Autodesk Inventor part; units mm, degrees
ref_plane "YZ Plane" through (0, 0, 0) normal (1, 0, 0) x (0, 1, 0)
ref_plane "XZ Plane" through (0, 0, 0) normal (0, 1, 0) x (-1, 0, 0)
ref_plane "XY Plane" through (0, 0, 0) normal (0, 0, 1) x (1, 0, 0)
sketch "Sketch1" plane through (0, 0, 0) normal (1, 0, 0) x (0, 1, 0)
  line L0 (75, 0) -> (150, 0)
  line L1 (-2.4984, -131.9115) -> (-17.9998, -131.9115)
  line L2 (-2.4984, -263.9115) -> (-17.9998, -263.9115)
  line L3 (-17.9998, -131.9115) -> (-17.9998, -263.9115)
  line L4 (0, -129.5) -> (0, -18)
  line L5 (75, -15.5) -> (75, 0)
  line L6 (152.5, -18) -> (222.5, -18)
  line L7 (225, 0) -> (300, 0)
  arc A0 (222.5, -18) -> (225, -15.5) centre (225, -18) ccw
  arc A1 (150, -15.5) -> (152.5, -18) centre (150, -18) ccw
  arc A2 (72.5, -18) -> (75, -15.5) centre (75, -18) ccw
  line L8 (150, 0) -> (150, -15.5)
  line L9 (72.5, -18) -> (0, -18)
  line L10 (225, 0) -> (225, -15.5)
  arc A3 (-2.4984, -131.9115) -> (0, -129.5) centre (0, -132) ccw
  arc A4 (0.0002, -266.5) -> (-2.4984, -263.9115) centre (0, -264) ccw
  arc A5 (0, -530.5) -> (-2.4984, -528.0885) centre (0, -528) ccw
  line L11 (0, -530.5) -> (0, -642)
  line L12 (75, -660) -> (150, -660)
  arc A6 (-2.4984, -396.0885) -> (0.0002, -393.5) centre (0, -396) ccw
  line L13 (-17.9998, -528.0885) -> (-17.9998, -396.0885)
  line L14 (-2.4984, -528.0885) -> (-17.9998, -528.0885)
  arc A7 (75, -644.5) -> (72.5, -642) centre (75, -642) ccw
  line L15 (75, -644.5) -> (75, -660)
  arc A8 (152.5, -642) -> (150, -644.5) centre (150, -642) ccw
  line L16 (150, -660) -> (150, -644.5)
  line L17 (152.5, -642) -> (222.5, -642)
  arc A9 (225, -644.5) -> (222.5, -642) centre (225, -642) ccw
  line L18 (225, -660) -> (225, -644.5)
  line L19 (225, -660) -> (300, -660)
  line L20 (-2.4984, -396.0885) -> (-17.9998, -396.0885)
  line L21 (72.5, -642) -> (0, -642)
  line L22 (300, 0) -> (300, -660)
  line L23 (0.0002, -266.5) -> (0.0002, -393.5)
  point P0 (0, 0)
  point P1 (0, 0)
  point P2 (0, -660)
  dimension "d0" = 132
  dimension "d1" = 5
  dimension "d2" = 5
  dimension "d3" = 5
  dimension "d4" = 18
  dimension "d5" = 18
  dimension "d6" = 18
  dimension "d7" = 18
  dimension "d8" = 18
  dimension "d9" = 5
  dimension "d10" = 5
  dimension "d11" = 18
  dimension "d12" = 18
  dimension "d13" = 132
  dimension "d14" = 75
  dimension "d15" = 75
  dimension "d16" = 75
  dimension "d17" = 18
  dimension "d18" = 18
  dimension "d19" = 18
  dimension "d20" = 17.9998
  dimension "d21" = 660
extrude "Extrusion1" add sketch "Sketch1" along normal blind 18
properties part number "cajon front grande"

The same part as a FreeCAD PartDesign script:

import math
import FreeCAD as App
import Part
import Sketcher

V = App.Vector

doc = App.newDocument("Part")
body = doc.addObject("PartDesign::Body", "Body")

sketch1 = body.newObject("Sketcher::SketchObject", "Sketch")
sketch1.AttachmentSupport = (doc.getObject("YZ_Plane"), [""])
sketch1.MapMode = "FlatFace"
sketch1.addGeometry([
    Part.LineSegment(V(150, 0, 0), V(75, 0, 0)),
    Part.LineSegment(V(75, 0, 0), V(75, -15.5, 0)),
    Part.ArcOfCircle(Part.Circle(V(75, -18, 0), V(0, 0, 1), 2.5), math.radians(180), math.radians(450)),
    Part.LineSegment(V(72.5, -18, 0), V(0, -18, 0)),
    Part.LineSegment(V(0, -18, 0), V(0, -129.5, 0)),
    Part.ArcOfCircle(Part.Circle(V(0, -132, 0), V(0, 0, 1), 2.499967), math.radians(177.971279), math.radians(450)),
    Part.LineSegment(V(-2.4984, -131.9115, 0), V(-17.9998, -131.9115, 0)),
    Part.LineSegment(V(-17.9998, -131.9115, 0), V(-17.9998, -263.9115, 0)),
    Part.LineSegment(V(-17.9998, -263.9115, 0), V(-2.4984, -263.9115, 0)),
    Part.ArcOfCircle(Part.Circle(V(0, -264, 0), V(0, 0, 1), 2.5), math.radians(-89.995416), math.radians(177.971279)),
    Part.LineSegment(V(0.0002, -266.5, 0), V(0.0002, -393.5, 0)),
    Part.ArcOfCircle(Part.Circle(V(0, -396, 0), V(0, 0, 1), 2.499967), math.radians(-177.971279), math.radians(89.995416)),
    Part.LineSegment(V(-2.4984, -396.0885, 0), V(-17.9998, -396.0885, 0)),
    Part.LineSegment(V(-17.9998, -396.0885, 0), V(-17.9998, -528.0885, 0)),
    Part.LineSegment(V(-17.9998, -528.0885, 0), V(-2.4984, -528.0885, 0)),
    Part.ArcOfCircle(Part.Circle(V(0, -528, 0), V(0, 0, 1), 2.5), math.radians(-90), math.radians(182.028721)),
    Part.LineSegment(V(0, -530.5, 0), V(0, -642, 0)),
    Part.LineSegment(V(0, -642, 0), V(72.5, -642, 0)),
    Part.ArcOfCircle(Part.Circle(V(75, -642, 0), V(0, 0, 1), 2.5), math.radians(-90), math.radians(180)),
    Part.LineSegment(V(75, -644.5, 0), V(75, -660, 0)),
    Part.LineSegment(V(75, -660, 0), V(150, -660, 0)),
    Part.LineSegment(V(150, -660, 0), V(150, -644.5, 0)),
    Part.ArcOfCircle(Part.Circle(V(150, -642, 0), V(0, 0, 1), 2.5), math.radians(0), math.radians(270)),
    Part.LineSegment(V(152.5, -642, 0), V(222.5, -642, 0)),
    Part.ArcOfCircle(Part.Circle(V(225, -642, 0), V(0, 0, 1), 2.5), math.radians(-90), math.radians(180)),
    Part.LineSegment(V(225, -644.5, 0), V(225, -660, 0)),
    Part.LineSegment(V(225, -660, 0), V(300, -660, 0)),
    Part.LineSegment(V(300, -660, 0), V(300, 0, 0)),
    Part.LineSegment(V(300, 0, 0), V(225, 0, 0)),
    Part.LineSegment(V(225, 0, 0), V(225, -15.5, 0)),
    Part.ArcOfCircle(Part.Circle(V(225, -18, 0), V(0, 0, 1), 2.5), math.radians(180), math.radians(450)),
    Part.LineSegment(V(222.5, -18, 0), V(152.5, -18, 0)),
    Part.ArcOfCircle(Part.Circle(V(150, -18, 0), V(0, 0, 1), 2.5), math.radians(90), math.radians(360)),
    Part.LineSegment(V(150, -15.5, 0), V(150, 0, 0)),
], False)
sketch1.addConstraint([
    Sketcher.Constraint("Coincident", 0, 2, 1, 1),
    Sketcher.Constraint("Coincident", 1, 2, 2, 2),
    Sketcher.Constraint("Coincident", 2, 1, 3, 1),
    Sketcher.Constraint("Coincident", 3, 2, 4, 1),
    Sketcher.Constraint("Coincident", 4, 2, 5, 2),
    Sketcher.Constraint("Coincident", 5, 1, 6, 1),
    Sketcher.Constraint("Coincident", 6, 2, 7, 1),
    Sketcher.Constraint("Coincident", 7, 2, 8, 1),
    Sketcher.Constraint("Coincident", 8, 2, 9, 2),
    Sketcher.Constraint("Coincident", 9, 1, 10, 1),
    Sketcher.Constraint("Coincident", 10, 2, 11, 2),
    Sketcher.Constraint("Coincident", 11, 1, 12, 1),
    Sketcher.Constraint("Coincident", 12, 2, 13, 1),
    Sketcher.Constraint("Coincident", 13, 2, 14, 1),
    Sketcher.Constraint("Coincident", 14, 2, 15, 2),
    Sketcher.Constraint("Coincident", 15, 1, 16, 1),
    Sketcher.Constraint("Coincident", 16, 2, 17, 1),
    Sketcher.Constraint("Coincident", 17, 2, 18, 2),
    Sketcher.Constraint("Coincident", 18, 1, 19, 1),
    Sketcher.Constraint("Coincident", 19, 2, 20, 1),
    Sketcher.Constraint("Coincident", 20, 2, 21, 1),
    Sketcher.Constraint("Coincident", 21, 2, 22, 2),
    Sketcher.Constraint("Coincident", 22, 1, 23, 1),
    Sketcher.Constraint("Coincident", 23, 2, 24, 2),
    Sketcher.Constraint("Coincident", 24, 1, 25, 1),
    Sketcher.Constraint("Coincident", 25, 2, 26, 1),
    Sketcher.Constraint("Coincident", 26, 2, 27, 1),
    Sketcher.Constraint("Coincident", 27, 2, 28, 1),
    Sketcher.Constraint("Coincident", 28, 2, 29, 1),
    Sketcher.Constraint("Coincident", 29, 2, 30, 2),
    Sketcher.Constraint("Coincident", 30, 1, 31, 1),
    Sketcher.Constraint("Coincident", 31, 2, 32, 2),
    Sketcher.Constraint("Coincident", 32, 1, 33, 1),
    Sketcher.Constraint("Coincident", 33, 2, 0, 1),
    Sketcher.Constraint("Horizontal", 0),
    Sketcher.Constraint("Vertical", 1),
    Sketcher.Constraint("Horizontal", 3),
    Sketcher.Constraint("Vertical", 4),
    Sketcher.Constraint("Horizontal", 6),
    Sketcher.Constraint("Vertical", 7),
    Sketcher.Constraint("Horizontal", 8),
    Sketcher.Constraint("Vertical", 10),
    Sketcher.Constraint("Horizontal", 12),
    Sketcher.Constraint("Vertical", 13),
    Sketcher.Constraint("Horizontal", 14),
    Sketcher.Constraint("Vertical", 16),
    Sketcher.Constraint("Horizontal", 17),
    Sketcher.Constraint("Vertical", 19),
    Sketcher.Constraint("Horizontal", 20),
    Sketcher.Constraint("Vertical", 21),
    Sketcher.Constraint("Horizontal", 23),
    Sketcher.Constraint("Vertical", 25),
    Sketcher.Constraint("Horizontal", 26),
    Sketcher.Constraint("Vertical", 27),
    Sketcher.Constraint("Horizontal", 28),
    Sketcher.Constraint("Vertical", 29),
    Sketcher.Constraint("Horizontal", 31),
    Sketcher.Constraint("Vertical", 33),
    Sketcher.Constraint("PointOnObject", 5, 3, -2),
    Sketcher.Constraint("PointOnObject", 9, 3, -2),
    Sketcher.Constraint("PointOnObject", 11, 3, -2),
    Sketcher.Constraint("PointOnObject", 15, 3, -2),
    Sketcher.Constraint("PointOnObject", 0, 2, -1),
    Sketcher.Constraint("PointOnObject", 3, 2, -2),
    Sketcher.Constraint("PointOnObject", 15, 1, -2),
    Sketcher.Constraint("PointOnObject", 27, 2, -1),
    Sketcher.Constraint("Radius", 2, 2.5),
    Sketcher.Constraint("Radius", 5, 2.5),
    Sketcher.Constraint("Radius", 9, 2.5),
    Sketcher.Constraint("Radius", 11, 2.5),
    Sketcher.Constraint("Radius", 15, 2.5),
    Sketcher.Constraint("Radius", 18, 2.5),
    Sketcher.Constraint("Radius", 22, 2.5),
    Sketcher.Constraint("Radius", 24, 2.5),
    Sketcher.Constraint("Radius", 30, 2.5),
    Sketcher.Constraint("Radius", 32, 2.5),
    Sketcher.Constraint("DistanceX", 0, 2, 0, 1, 75.0),
    Sketcher.Constraint("DistanceX", 20, 1, 20, 2, 75.0),
    Sketcher.Constraint("DistanceX", 26, 1, 26, 2, 75.0),
    Sketcher.Constraint("DistanceX", 28, 2, 28, 1, 75.0),
    Sketcher.Constraint("DistanceY", 7, 2, 7, 1, 132.0),
    Sketcher.Constraint("DistanceY", 13, 2, 13, 1, 132.0),
    Sketcher.Constraint("DistanceY", 27, 1, 27, 2, 660.0),
    Sketcher.Constraint("DistanceX", -1, 1, 2, 3, 75.0),
    Sketcher.Constraint("DistanceY", 2, 3, -1, 1, 18.0),
    Sketcher.Constraint("DistanceY", 5, 3, -1, 1, 132.0),
    Sketcher.Constraint("DistanceX", -1, 1, 18, 3, 75.0),
    Sketcher.Constraint("DistanceY", 30, 3, -1, 1, 18.0),
    Sketcher.Constraint("DistanceY", 32, 3, -1, 1, 18.0),
    Sketcher.Constraint("DistanceX", -1, 1, 0, 2, 75.0),
    Sketcher.Constraint("DistanceY", 2, 1, -1, 1, 18.0),
    Sketcher.Constraint("DistanceX", -1, 1, 18, 1, 75.0),
    Sketcher.Constraint("DistanceY", 19, 2, -1, 1, 660.0),
    Sketcher.Constraint("DistanceY", 30, 1, -1, 1, 18.0),
    Sketcher.Constraint("DistanceY", 9, 3, 5, 3, 132.0),
    Sketcher.Constraint("DistanceY", 11, 3, 9, 3, 132.0),
    Sketcher.Constraint("DistanceY", 15, 3, 11, 3, 132.0),
    Sketcher.Constraint("DistanceX", 18, 3, 22, 3, 75.0),
    Sketcher.Constraint("DistanceX", 22, 3, 24, 3, 75.0),
    Sketcher.Constraint("DistanceX", 2, 3, 32, 3, 75.0),
    Sketcher.Constraint("DistanceX", 32, 3, 30, 3, 75.0),
    Sketcher.Constraint("DistanceX", 7, 2, 9, 1, 18.0),
    Sketcher.Constraint("DistanceX", 12, 2, 10, 2, 18.0),
    Sketcher.Constraint("DistanceY", 19, 2, 18, 3, 18.0),
    Sketcher.Constraint("DistanceY", 19, 2, 17, 2, 18.0),
    Sketcher.Constraint("DistanceY", 19, 2, 22, 3, 18.0),
    Sketcher.Constraint("DistanceY", 20, 2, 24, 3, 18.0),
    Sketcher.Constraint("DistanceY", 20, 2, 22, 1, 18.0),
    Sketcher.Constraint("DistanceX", 21, 2, 24, 1, 75.0),
    Sketcher.Constraint("DistanceX", 6, 2, -1, 1, 17.9998),
    Sketcher.Constraint("DistanceX", 6, 2, 6, 1, 15.5014),
    Sketcher.Constraint("DistanceX", 12, 2, 12, 1, 15.5014),
])
pad1 = body.newObject("PartDesign::Pad", "Pad")
pad1.Profile = sketch1
pad1.Length = 18

doc.recompute()
